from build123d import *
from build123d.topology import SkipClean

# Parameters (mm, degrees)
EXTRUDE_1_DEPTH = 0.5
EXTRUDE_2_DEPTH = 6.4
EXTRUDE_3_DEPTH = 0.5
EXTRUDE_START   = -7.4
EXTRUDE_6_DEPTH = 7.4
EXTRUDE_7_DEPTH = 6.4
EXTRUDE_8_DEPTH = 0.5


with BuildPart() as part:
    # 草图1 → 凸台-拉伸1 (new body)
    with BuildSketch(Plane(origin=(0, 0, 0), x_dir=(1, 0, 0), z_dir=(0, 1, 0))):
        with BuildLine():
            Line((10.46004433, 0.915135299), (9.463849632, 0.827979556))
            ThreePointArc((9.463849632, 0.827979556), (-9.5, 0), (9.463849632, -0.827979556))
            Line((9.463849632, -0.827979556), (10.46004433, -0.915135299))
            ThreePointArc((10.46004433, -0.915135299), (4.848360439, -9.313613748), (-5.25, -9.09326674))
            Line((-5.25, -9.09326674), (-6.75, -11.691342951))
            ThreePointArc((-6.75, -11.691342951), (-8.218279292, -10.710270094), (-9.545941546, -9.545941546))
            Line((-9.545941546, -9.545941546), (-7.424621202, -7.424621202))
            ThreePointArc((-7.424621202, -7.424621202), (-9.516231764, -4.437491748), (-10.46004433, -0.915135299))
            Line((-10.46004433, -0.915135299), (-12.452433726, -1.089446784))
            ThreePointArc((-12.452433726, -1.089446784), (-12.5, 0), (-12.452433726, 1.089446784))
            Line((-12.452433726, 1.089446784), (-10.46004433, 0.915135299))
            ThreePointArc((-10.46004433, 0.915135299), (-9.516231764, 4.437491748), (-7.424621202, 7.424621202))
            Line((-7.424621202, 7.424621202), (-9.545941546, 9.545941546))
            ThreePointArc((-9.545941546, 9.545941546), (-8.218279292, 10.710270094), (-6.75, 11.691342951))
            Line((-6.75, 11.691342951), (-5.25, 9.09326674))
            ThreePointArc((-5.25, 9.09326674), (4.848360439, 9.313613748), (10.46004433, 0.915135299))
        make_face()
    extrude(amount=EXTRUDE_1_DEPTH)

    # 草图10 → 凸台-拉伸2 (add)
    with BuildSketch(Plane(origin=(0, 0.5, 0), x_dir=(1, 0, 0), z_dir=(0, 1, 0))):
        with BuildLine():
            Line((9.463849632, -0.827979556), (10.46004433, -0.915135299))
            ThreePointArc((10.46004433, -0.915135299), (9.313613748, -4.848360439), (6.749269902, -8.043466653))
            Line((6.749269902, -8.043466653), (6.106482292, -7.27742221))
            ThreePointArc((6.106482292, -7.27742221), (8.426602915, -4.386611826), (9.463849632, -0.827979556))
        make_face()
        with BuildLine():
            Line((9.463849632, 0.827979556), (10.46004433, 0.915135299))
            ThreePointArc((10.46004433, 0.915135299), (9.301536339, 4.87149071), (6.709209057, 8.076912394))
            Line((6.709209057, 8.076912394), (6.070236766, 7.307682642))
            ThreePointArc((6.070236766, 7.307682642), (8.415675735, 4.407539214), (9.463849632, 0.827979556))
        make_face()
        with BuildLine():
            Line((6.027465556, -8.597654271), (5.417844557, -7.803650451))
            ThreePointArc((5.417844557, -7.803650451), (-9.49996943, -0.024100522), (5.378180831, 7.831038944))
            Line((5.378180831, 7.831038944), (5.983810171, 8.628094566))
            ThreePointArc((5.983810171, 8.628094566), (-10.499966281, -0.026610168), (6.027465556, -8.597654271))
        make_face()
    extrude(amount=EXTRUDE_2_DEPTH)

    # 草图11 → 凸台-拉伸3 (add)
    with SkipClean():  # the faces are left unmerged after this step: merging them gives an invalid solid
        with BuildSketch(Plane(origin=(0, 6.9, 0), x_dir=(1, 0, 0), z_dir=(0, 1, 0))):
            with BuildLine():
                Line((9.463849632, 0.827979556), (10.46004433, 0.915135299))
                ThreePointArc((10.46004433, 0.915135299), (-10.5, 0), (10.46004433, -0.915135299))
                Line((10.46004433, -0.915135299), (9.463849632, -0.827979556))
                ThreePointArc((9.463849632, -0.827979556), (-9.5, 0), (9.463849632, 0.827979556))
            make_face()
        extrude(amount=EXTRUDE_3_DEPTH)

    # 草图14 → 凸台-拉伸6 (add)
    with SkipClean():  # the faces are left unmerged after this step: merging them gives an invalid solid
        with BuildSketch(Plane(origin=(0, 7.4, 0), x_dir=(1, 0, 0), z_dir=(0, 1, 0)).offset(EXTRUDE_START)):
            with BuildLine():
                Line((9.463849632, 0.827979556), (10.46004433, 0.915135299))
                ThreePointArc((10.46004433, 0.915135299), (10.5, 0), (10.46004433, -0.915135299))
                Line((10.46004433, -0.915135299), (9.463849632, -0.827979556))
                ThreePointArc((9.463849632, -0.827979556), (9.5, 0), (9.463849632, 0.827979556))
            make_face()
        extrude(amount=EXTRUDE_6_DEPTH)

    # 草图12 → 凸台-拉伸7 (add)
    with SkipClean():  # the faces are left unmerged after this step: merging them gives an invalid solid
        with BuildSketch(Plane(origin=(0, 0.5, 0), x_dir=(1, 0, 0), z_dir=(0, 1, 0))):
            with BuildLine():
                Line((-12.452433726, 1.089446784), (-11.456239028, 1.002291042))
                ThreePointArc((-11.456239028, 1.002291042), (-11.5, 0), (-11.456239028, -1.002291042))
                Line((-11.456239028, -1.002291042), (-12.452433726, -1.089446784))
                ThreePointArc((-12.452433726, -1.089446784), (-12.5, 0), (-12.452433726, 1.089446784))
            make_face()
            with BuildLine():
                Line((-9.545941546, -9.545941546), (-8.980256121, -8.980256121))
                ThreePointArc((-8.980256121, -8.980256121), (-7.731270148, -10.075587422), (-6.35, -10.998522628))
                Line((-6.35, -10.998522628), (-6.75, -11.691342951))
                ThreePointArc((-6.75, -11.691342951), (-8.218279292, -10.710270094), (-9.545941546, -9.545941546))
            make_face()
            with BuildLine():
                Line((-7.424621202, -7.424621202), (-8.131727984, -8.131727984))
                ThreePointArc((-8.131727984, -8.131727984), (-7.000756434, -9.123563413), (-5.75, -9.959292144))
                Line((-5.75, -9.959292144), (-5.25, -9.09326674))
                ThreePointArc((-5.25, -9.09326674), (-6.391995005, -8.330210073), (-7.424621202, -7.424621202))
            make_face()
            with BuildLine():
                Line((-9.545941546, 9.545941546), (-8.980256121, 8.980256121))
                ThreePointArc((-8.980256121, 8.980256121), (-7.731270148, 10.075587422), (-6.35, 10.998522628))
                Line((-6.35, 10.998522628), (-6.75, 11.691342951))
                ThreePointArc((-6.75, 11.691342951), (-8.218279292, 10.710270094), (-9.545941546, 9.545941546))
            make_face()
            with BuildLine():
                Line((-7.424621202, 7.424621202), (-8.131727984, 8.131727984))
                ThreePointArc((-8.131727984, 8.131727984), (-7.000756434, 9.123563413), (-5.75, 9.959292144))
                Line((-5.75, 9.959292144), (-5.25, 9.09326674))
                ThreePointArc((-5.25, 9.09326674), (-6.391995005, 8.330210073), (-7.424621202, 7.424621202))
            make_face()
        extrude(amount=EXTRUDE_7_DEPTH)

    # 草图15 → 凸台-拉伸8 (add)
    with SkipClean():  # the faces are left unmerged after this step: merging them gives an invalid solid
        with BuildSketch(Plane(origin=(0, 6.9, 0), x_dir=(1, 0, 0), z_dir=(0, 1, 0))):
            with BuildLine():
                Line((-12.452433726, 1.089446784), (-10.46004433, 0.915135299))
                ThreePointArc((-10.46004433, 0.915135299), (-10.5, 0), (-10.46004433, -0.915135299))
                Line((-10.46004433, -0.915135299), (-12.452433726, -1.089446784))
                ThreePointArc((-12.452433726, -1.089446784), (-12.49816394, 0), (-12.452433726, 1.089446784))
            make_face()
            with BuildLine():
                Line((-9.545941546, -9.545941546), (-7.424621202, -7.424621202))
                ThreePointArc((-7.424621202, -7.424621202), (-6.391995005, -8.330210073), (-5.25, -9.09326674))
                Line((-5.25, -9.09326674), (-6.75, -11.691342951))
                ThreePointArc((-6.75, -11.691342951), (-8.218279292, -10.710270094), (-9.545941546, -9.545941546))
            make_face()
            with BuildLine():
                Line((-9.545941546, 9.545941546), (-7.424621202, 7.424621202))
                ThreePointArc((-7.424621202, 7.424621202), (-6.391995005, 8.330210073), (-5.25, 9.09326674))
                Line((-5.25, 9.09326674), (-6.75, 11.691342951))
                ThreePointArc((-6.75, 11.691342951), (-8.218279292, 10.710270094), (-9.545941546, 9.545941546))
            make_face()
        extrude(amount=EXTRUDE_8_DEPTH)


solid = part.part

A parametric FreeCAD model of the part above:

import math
import FreeCAD as App
import Part
import Sketcher
Q = App.Units.Quantity

doc = App.newDocument("Part")
params = doc.addObject("Spreadsheet::Sheet", "Params")
for row, (alias, value) in enumerate([
    ("sketch1_radius", "10.5 mm"),
    ("sketch1_radius2", "13.5 mm"),
    ("sketch1_radius3", "12.5 mm"),
    ("sketch1_radius4", "9.5 mm"),
    ("pad1_length", "0.5 mm"),
    ("sketch2_radius", "9.5 mm"),
    ("sketch2_radius2", "10.5 mm"),
    ("pad2_length", "6.4 mm"),
    ("sketch3_radius", "10.5 mm"),
    ("sketch3_radius2", "9.5 mm"),
    ("pad3_length", "0.5 mm"),
    ("sketch4_radius", "9.5 mm"),
    ("sketch4_radius2", "10.5 mm"),
    ("pad4_length", "7.4 mm"),
    ("sketch5_radius", "12.5 mm"),
    ("sketch5_radius2", "11.5 mm"),
    ("sketch5_radius3", "13.5 mm"),
    ("sketch5_radius4", "12.7 mm"),
    ("pad5_length", "6.4 mm"),
    ("sketch6_radius", "13 mm"),
    ("sketch6_radius2", "10.5 mm"),
    ("sketch6_radius3", "13.5 mm"),
    ("sketch6_length", "2 mm"),
    ("pad6_length", "0.5 mm"),
], start=1):
    params.set(f"A{row}", alias)
    params.set(f"B{row}", "=" + value)
    params.setAlias(f"B{row}", alias)

body = doc.addObject("PartDesign::Body", "Body")

# Sketch on XZ plane
sketch1 = body.newObject("Sketcher::SketchObject", "Sketch")
sketch1.AttachmentSupport = (doc.getObject("XZ_Plane"), [""])
sketch1.MapMode = "FlatFace"
sketch1.addGeometry([
    Part.LineSegment(App.Vector(9.5, -0.8, 0), App.Vector(10.5, -0.9, 0)),  # 0
    Part.ArcOfCircle(Part.Circle(App.Vector(0, 0, 0), App.Vector(0, 0, 1), 10.5), math.radians(-120), math.radians(-5)),  # 1
    Part.LineSegment(App.Vector(-5.2, -9.1, 0), App.Vector(-6.8, -11.7, 0)),  # 2
    Part.ArcOfCircle(Part.Circle(App.Vector(0, 0, 0), App.Vector(0, 0, 1), 13.5), math.radians(-135), math.radians(-120)),  # 3
    Part.LineSegment(App.Vector(-9.5, -9.5, 0), App.Vector(-7.4, -7.4, 0)),  # 4
    Part.ArcOfCircle(Part.Circle(App.Vector(0, 0, 0), App.Vector(0, 0, 1), 10.5), math.radians(-175), math.radians(-135)),  # 5
    Part.LineSegment(App.Vector(-10.5, -0.9, 0), App.Vector(-12.5, -1.1, 0)),  # 6
    Part.ArcOfCircle(Part.Circle(App.Vector(0, 0, 0), App.Vector(0, 0, 1), 12.5), math.radians(175), math.radians(185)),  # 7
    Part.LineSegment(App.Vector(-12.5, 1.1, 0), App.Vector(-10.5, 0.9, 0)),  # 8
    Part.ArcOfCircle(Part.Circle(App.Vector(0, 0, 0), App.Vector(0, 0, 1), 10.5), math.radians(135), math.radians(175)),  # 9
    Part.LineSegment(App.Vector(-7.4, 7.4, 0), App.Vector(-9.5, 9.5, 0)),  # 10
    Part.ArcOfCircle(Part.Circle(App.Vector(0, 0, 0), App.Vector(0, 0, 1), 13.5), math.radians(120), math.radians(135)),  # 11
    Part.LineSegment(App.Vector(-6.8, 11.7, 0), App.Vector(-5.2, 9.1, 0)),  # 12
    Part.ArcOfCircle(Part.Circle(App.Vector(0, 0, 0), App.Vector(0, 0, 1), 10.5), math.radians(5), math.radians(120)),  # 13
    Part.LineSegment(App.Vector(10.5, 0.9, 0), App.Vector(9.5, 0.8, 0)),  # 14
    Part.ArcOfCircle(Part.Circle(App.Vector(0, 0, 0), App.Vector(0, 0, 1), 9.5), math.radians(5), math.radians(355)),  # 15
], False)
sketch1.addConstraint([
    Sketcher.Constraint("Coincident", 0, 2, 1, 2),
    Sketcher.Constraint("Coincident", 1, 1, 2, 1),
    Sketcher.Constraint("Coincident", 2, 2, 3, 2),
    Sketcher.Constraint("Coincident", 3, 1, 4, 1),
    Sketcher.Constraint("Coincident", 4, 2, 5, 2),
    Sketcher.Constraint("Coincident", 5, 1, 6, 1),
    Sketcher.Constraint("Coincident", 6, 2, 7, 2),
    Sketcher.Constraint("Coincident", 7, 1, 8, 1),
    Sketcher.Constraint("Coincident", 8, 2, 9, 2),
    Sketcher.Constraint("Coincident", 9, 1, 10, 1),
    Sketcher.Constraint("Coincident", 10, 2, 11, 2),
    Sketcher.Constraint("Coincident", 11, 1, 12, 1),
    Sketcher.Constraint("Coincident", 12, 2, 13, 2),
    Sketcher.Constraint("Coincident", 13, 1, 14, 1),
    Sketcher.Constraint("Coincident", 14, 2, 15, 1),
    Sketcher.Constraint("Coincident", 15, 2, 0, 1),
    Sketcher.Constraint("Coincident", 1, 3, -1, 1),
    Sketcher.Constraint("Coincident", 3, 3, -1, 1),
    Sketcher.Constraint("Coincident", 5, 3, -1, 1),
    Sketcher.Constraint("Coincident", 7, 3, -1, 1),
    Sketcher.Constraint("Coincident", 9, 3, -1, 1),
    Sketcher.Constraint("Coincident", 11, 3, -1, 1),
    Sketcher.Constraint("Coincident", 13, 3, -1, 1),
    Sketcher.Constraint("Coincident", 15, 3, -1, 1),
    Sketcher.Constraint("Equal", 1, 5),
    Sketcher.Constraint("Equal", 5, 9),
    Sketcher.Constraint("Equal", 3, 11),
    Sketcher.Constraint("Equal", 9, 13),
    Sketcher.Constraint("Parallel", 0, 8),
    Sketcher.Constraint("Perpendicular", 4, 10),
    Sketcher.Constraint("Parallel", 6, 14),
    Sketcher.Constraint("Horizontal", 0, 2, 5, 1),
    Sketcher.Constraint("Horizontal", 8, 2, 13, 1),
    Sketcher.Constraint("Vertical", 6, 2, 7, 1),
    Sketcher.Constraint("Vertical", 5, 1, 8, 2),
    Sketcher.Constraint("Vertical", 4, 2, 9, 1),
    Sketcher.Constraint("Vertical", 3, 1, 10, 2),
    Sketcher.Constraint("Vertical", 2, 2, 11, 1),
    Sketcher.Constraint("Vertical", 1, 1, 12, 2),
    Sketcher.Constraint("Radius", 1, 10.5),
    Sketcher.Constraint("Radius", 3, 13.5),
    Sketcher.Constraint("Radius", 7, 12.5),
    Sketcher.Constraint("Radius", 15, 9.5),
    Sketcher.Constraint("Angle", 0, Q("-5 deg")),
    Sketcher.Constraint("Angle", 2, Q("-120 deg")),
    Sketcher.Constraint("DistanceX", 1, 1, -1, 1, 5.25),
    Sketcher.Constraint("DistanceY", 2, 2, 3, 1, 2.145401),
    Sketcher.Constraint("DistanceX", -1, 1, 14, 2, 9.46385),
])
sketch1.setExpression("Constraints[39]", "Params.sketch1_radius")
sketch1.setExpression("Constraints[40]", "Params.sketch1_radius2")
sketch1.setExpression("Constraints[41]", "Params.sketch1_radius3")
sketch1.setExpression("Constraints[42]", "Params.sketch1_radius4")
pad1 = body.newObject("PartDesign::Pad", "Pad")
pad1.Profile = sketch1
pad1.setExpression("Length", "Params.pad1_length")
pad1.Reversed = True

# Sketch on XZ plane
sketch2 = body.newObject("Sketcher::SketchObject", "Sketch001")
sketch2.AttachmentSupport = (doc.getObject("XZ_Plane"), [""])
sketch2.MapMode = "FlatFace"
sketch2.AttachmentOffset = App.Placement(App.Vector(0, 0, -0.5), App.Rotation())
sketch2.addGeometry([
    Part.LineSegment(App.Vector(10.460044, 0.915135, 0), App.Vector(9.46385, 0.82798, 0)),  # 0
    Part.ArcOfCircle(Part.Circle(App.Vector(0, 0, 0), App.Vector(0, 0, 1), 9.5), math.radians(5), math.radians(50)),  # 1
    Part.LineSegment(App.Vector(6.106482, 7.277422, 0), App.Vector(6.74927, 8.043467, 0)),  # 2
    Part.ArcOfCircle(Part.Circle(App.Vector(0, 0, 0), App.Vector(0, 0, 1), 10.5), math.radians(5), math.radians(50)),  # 3
    Part.LineSegment(App.Vector(9.46385, -0.82798, 0), App.Vector(10.460044, -0.915135, 0)),  # 4
    Part.ArcOfCircle(Part.Circle(App.Vector(0, 0, 0), App.Vector(0, 0, 1), 10.5), math.radians(-50.284772), math.radians(-5)),  # 5
    Part.LineSegment(App.Vector(6.709209, -8.076912, 0), App.Vector(6.070237, -7.307683, 0)),  # 6
    Part.ArcOfCircle(Part.Circle(App.Vector(0, 0, 0), App.Vector(0, 0, 1), 9.5), math.radians(-50.284772), math.radians(-5)),  # 7
    Part.LineSegment(App.Vector(6.027466, 8.597654, 0), App.Vector(5.417845, 7.80365, 0)),  # 8
    Part.ArcOfCircle(Part.Circle(App.Vector(0, 0, 0), App.Vector(0, 0, 1), 9.5), math.radians(55.228892), math.radians(304.480401)),  # 9
    Part.LineSegment(App.Vector(5.378181, -7.831039, 0), App.Vector(5.98381, -8.628095, 0)),  # 10
    Part.ArcOfCircle(Part.Circle(App.Vector(0, 0, 0), App.Vector(0, 0, 1), 10.5), math.radians(54.967266), math.radians(304.742324)),  # 11
], False)
sketch2.addConstraint([
    Sketcher.Constraint("Coincident", 0, 2, 1, 1),
    Sketcher.Constraint("Coincident", 1, 2, 2, 1),
    Sketcher.Constraint("Coincident", 2, 2, 3, 2),
    Sketcher.Constraint("Coincident", 3, 1, 0, 1),
    Sketcher.Constraint("Coincident", 4, 2, 5, 2),
    Sketcher.Constraint("Coincident", 5, 1, 6, 1),
    Sketcher.Constraint("Coincident", 6, 2, 7, 1),
    Sketcher.Constraint("Coincident", 7, 2, 4, 1),
    Sketcher.Constraint("Coincident", 8, 2, 9, 1),
    Sketcher.Constraint("Coincident", 9, 2, 10, 1),
    Sketcher.Constraint("Coincident", 10, 2, 11, 2),
    Sketcher.Constraint("Coincident", 11, 1, 8, 1),
    Sketcher.Constraint("Coincident", 1, 3, -1, 1),
    Sketcher.Constraint("Coincident", 3, 3, -1, 1),
    Sketcher.Constraint("Coincident", 5, 3, -1, 1),
    Sketcher.Constraint("Coincident", 7, 3, -1, 1),
    Sketcher.Constraint("Coincident", 9, 3, -1, 1),
    Sketcher.Constraint("Coincident", 11, 3, -1, 1),
    Sketcher.Constraint("Equal", 3, 5),
    Sketcher.Constraint("Equal", 1, 7),
    Sketcher.Constraint("Equal", 7, 9),
    Sketcher.Constraint("Equal", 5, 11),
    Sketcher.Constraint("Vertical", 3, 1, 4, 2),
    Sketcher.Constraint("Vertical", 0, 2, 7, 2),
    Sketcher.Constraint("Radius", 1, 9.5),
    Sketcher.Constraint("Radius", 3, 10.5),
    Sketcher.Constraint("Angle", 0, Q("-175 deg")),
    Sketcher.Constraint("Angle", 2, Q("50 deg")),
    Sketcher.Constraint("DistanceY", 4, 2, 2, 2, 8.958602),
    Sketcher.Constraint("DistanceX", 8, 2, 3, 1, 5.0422),
    Sketcher.Constraint("DistanceX", 10, 2, 5, 1, 0.725399),
    Sketcher.Constraint("Distance", 8, 1.001039),
    Sketcher.Constraint("Distance", 10, 1.001042),
    Sketcher.Constraint("DistanceX", -1, 1, 0, 2, 9.46385),
    Sketcher.Constraint("DistanceX", -1, 1, 5, 1, 6.709209),
    Sketcher.Constraint("DistanceY", 5, 1, 6, 2, 0.76923),
])
sketch2.setExpression("Constraints[24]", "Params.sketch2_radius")
sketch2.setExpression("Constraints[25]", "Params.sketch2_radius2")
pad2 = body.newObject("PartDesign::Pad", "Pad001")
pad2.Profile = sketch2
pad2.setExpression("Length", "Params.pad2_length")
pad2.Reversed = True

# Sketch on XZ plane
sketch3 = body.newObject("Sketcher::SketchObject", "Sketch002")
sketch3.AttachmentSupport = (doc.getObject("XZ_Plane"), [""])
sketch3.MapMode = "FlatFace"
sketch3.AttachmentOffset = App.Placement(App.Vector(0, 0, -6.9), App.Rotation())
sketch3.addGeometry([
    Part.LineSegment(App.Vector(9.5, -0.8, 0), App.Vector(10.5, -0.9, 0)),
    Part.ArcOfCircle(Part.Circle(App.Vector(0, 0, 0), App.Vector(0, 0, 1), 10.5), math.radians(5), math.radians(355)),
    Part.LineSegment(App.Vector(10.5, 0.9, 0), App.Vector(9.5, 0.8, 0)),
    Part.ArcOfCircle(Part.Circle(App.Vector(0, 0, 0), App.Vector(0, 0, 1), 9.5), math.radians(5), math.radians(355)),
], False)
sketch3.addConstraint([
    Sketcher.Constraint("Coincident", 0, 2, 1, 2),
    Sketcher.Constraint("Coincident", 1, 1, 2, 1),
    Sketcher.Constraint("Coincident", 2, 2, 3, 1),
    Sketcher.Constraint("Coincident", 3, 2, 0, 1),
    Sketcher.Constraint("Coincident", 1, 3, -1, 1),
    Sketcher.Constraint("Coincident", 3, 3, -1, 1),
    Sketcher.Constraint("Vertical", 0, 2, 1, 1),
    Sketcher.Constraint("Vertical", 2, 2, 3, 2),
    Sketcher.Constraint("Radius", 1, 10.5),
    Sketcher.Constraint("Radius", 3, 9.5),
    Sketcher.Constraint("Angle", 0, Q("-5 deg")),
    Sketcher.Constraint("DistanceX", -1, 1, 2, 2, 9.46385),
])
sketch3.setExpression("Constraints[8]", "Params.sketch3_radius")
sketch3.setExpression("Constraints[9]", "Params.sketch3_radius2")
pad3 = body.newObject("PartDesign::Pad", "Pad002")
pad3.Profile = sketch3
pad3.setExpression("Length", "Params.pad3_length")
pad3.Reversed = True

# Sketch on XZ plane
sketch4 = body.newObject("Sketcher::SketchObject", "Sketch003")
sketch4.AttachmentSupport = (doc.getObject("XZ_Plane"), [""])
sketch4.MapMode = "FlatFace"
sketch4.addGeometry([
    Part.LineSegment(App.Vector(10.5, -0.9, 0), App.Vector(9.5, -0.8, 0)),
    Part.ArcOfCircle(Part.Circle(App.Vector(0, 0, 0), App.Vector(0, 0, 1), 9.5), math.radians(-5), math.radians(5)),
    Part.LineSegment(App.Vector(9.5, 0.8, 0), App.Vector(10.5, 0.9, 0)),
    Part.ArcOfCircle(Part.Circle(App.Vector(0, 0, 0), App.Vector(0, 0, 1), 10.5), math.radians(-5), math.radians(5)),
], False)
sketch4.addConstraint([
    Sketcher.Constraint("Coincident", 0, 2, 1, 1),
    Sketcher.Constraint("Coincident", 1, 2, 2, 1),
    Sketcher.Constraint("Coincident", 2, 2, 3, 2),
    Sketcher.Constraint("Coincident", 3, 1, 0, 1),
    Sketcher.Constraint("Coincident", 1, 3, -1, 1),
    Sketcher.Constraint("Coincident", 3, 3, -1, 1),
    Sketcher.Constraint("Vertical", 0, 2, 1, 2),
    Sketcher.Constraint("Vertical", 2, 2, 3, 1),
    Sketcher.Constraint("Radius", 1, 9.5),
    Sketcher.Constraint("Radius", 3, 10.5),
    Sketcher.Constraint("Angle", 0, Q("175 deg")),
    Sketcher.Constraint("DistanceX", -1, 1, 0, 2, 9.46385),
])
sketch4.setExpression("Constraints[8]", "Params.sketch4_radius")
sketch4.setExpression("Constraints[9]", "Params.sketch4_radius2")
pad4 = body.newObject("PartDesign::Pad", "Pad003")
pad4.Profile = sketch4
pad4.setExpression("Length", "Params.pad4_length")
pad4.Reversed = True

# Sketch on XZ plane
sketch5 = body.newObject("Sketcher::SketchObject", "Sketch004")
sketch5.AttachmentSupport = (doc.getObject("XZ_Plane"), [""])
sketch5.MapMode = "FlatFace"
sketch5.AttachmentOffset = App.Placement(App.Vector(0, 0, -0.5), App.Rotation())
sketch5.addGeometry([
    Part.LineSegment(App.Vector(-11.5, -1, 0), App.Vector(-12.5, -1.1, 0)),  # 0
    Part.ArcOfCircle(Part.Circle(App.Vector(0, 0, 0), App.Vector(0, 0, 1), 12.5), math.radians(175), math.radians(185)),  # 1
    Part.LineSegment(App.Vector(-12.5, 1.1, 0), App.Vector(-11.5, 1, 0)),  # 2
    Part.ArcOfCircle(Part.Circle(App.Vector(0, 0, 0), App.Vector(0, 0, 1), 11.5), math.radians(175), math.radians(185)),  # 3
    Part.LineSegment(App.Vector(-9, 9, 0), App.Vector(-9.5, 9.5, 0)),  # 4
    Part.ArcOfCircle(Part.Circle(App.Vector(0, 0, 0), App.Vector(0, 0, 1), 13.5), math.radians(120), math.radians(135)),  # 5
    Part.LineSegment(App.Vector(-6.8, 11.7, 0), App.Vector(-6.3, 11, 0)),  # 6
    Part.ArcOfCircle(Part.Circle(App.Vector(0, 0, 0), App.Vector(0, 0, 1), 12.7), math.radians(120), math.radians(135)),  # 7
    Part.LineSegment(App.Vector(-7.4, 7.4, 0), App.Vector(-8.1, 8.1, 0)),  # 8
    Part.ArcOfCircle(Part.Circle(App.Vector(0, 0, 0), App.Vector(0, 0, 1), 11.5), math.radians(120), math.radians(135)),  # 9
    Part.LineSegment(App.Vector(-5.8, 10, 0), App.Vector(-5.2, 9.1, 0)),  # 10
    Part.ArcOfCircle(Part.Circle(App.Vector(0, 0, 0), App.Vector(0, 0, 1), 10.5), math.radians(120), math.radians(135)),  # 11
    Part.LineSegment(App.Vector(-9.5, -9.5, 0), App.Vector(-9, -9, 0)),  # 12
    Part.ArcOfCircle(Part.Circle(App.Vector(0, 0, 0), App.Vector(0, 0, 1), 12.7), math.radians(-135), math.radians(-120)),  # 13
    Part.LineSegment(App.Vector(-6.3, -11, 0), App.Vector(-6.8, -11.7, 0)),  # 14
    Part.ArcOfCircle(Part.Circle(App.Vector(0, 0, 0), App.Vector(0, 0, 1), 13.5), math.radians(-135), math.radians(-120)),  # 15
    Part.LineSegment(App.Vector(-8.1, -8.1, 0), App.Vector(-7.4, -7.4, 0)),  # 16
    Part.ArcOfCircle(Part.Circle(App.Vector(0, 0, 0), App.Vector(0, 0, 1), 10.5), math.radians(-135), math.radians(-120)),  # 17
    Part.LineSegment(App.Vector(-5.2, -9.1, 0), App.Vector(-5.8, -10, 0)),  # 18
    Part.ArcOfCircle(Part.Circle(App.Vector(0, 0, 0), App.Vector(0, 0, 1), 11.5), math.radians(-135), math.radians(-120)),  # 19
], False)
sketch5.addConstraint([
    Sketcher.Constraint("Coincident", 0, 2, 1, 2),
    Sketcher.Constraint("Coincident", 1, 1, 2, 1),
    Sketcher.Constraint("Coincident", 2, 2, 3, 1),
    Sketcher.Constraint("Coincident", 3, 2, 0, 1),
    Sketcher.Constraint("Coincident", 4, 2, 5, 2),
    Sketcher.Constraint("Coincident", 5, 1, 6, 1),
    Sketcher.Constraint("Coincident", 6, 2, 7, 1),
    Sketcher.Constraint("Coincident", 7, 2, 4, 1),
    Sketcher.Constraint("Coincident", 8, 2, 9, 2),
    Sketcher.Constraint("Coincident", 9, 1, 10, 1),
    Sketcher.Constraint("Coincident", 10, 2, 11, 1),
    Sketcher.Constraint("Coincident", 11, 2, 8, 1),
    Sketcher.Constraint("Coincident", 12, 2, 13, 1),
    Sketcher.Constraint("Coincident", 13, 2, 14, 1),
    Sketcher.Constraint("Coincident", 14, 2, 15, 2),
    Sketcher.Constraint("Coincident", 15, 1, 12, 1),
    Sketcher.Constraint("Coincident", 16, 2, 17, 1),
    Sketcher.Constraint("Coincident", 17, 2, 18, 1),
    Sketcher.Constraint("Coincident", 18, 2, 19, 2),
    Sketcher.Constraint("Coincident", 19, 1, 16, 1),
    Sketcher.Constraint("Coincident", 1, 3, -1, 1),
    Sketcher.Constraint("Coincident", 3, 3, -1, 1),
    Sketcher.Constraint("Coincident", 5, 3, -1, 1),
    Sketcher.Constraint("Coincident", 7, 3, -1, 1),
    Sketcher.Constraint("Coincident", 9, 3, -1, 1),
    Sketcher.Constraint("Coincident", 11, 3, -1, 1),
    Sketcher.Constraint("Coincident", 13, 3, -1, 1),
    Sketcher.Constraint("Coincident", 15, 3, -1, 1),
    Sketcher.Constraint("Coincident", 17, 3, -1, 1),
    Sketcher.Constraint("Coincident", 19, 3, -1, 1),
    Sketcher.Constraint("Equal", 3, 9),
    Sketcher.Constraint("Equal", 7, 13),
    Sketcher.Constraint("Equal", 5, 15),
    Sketcher.Constraint("Equal", 11, 17),
    Sketcher.Constraint("Equal", 9, 19),
    Sketcher.Constraint("Parallel", 4, 8),
    Sketcher.Constraint("Parallel", 6, 10),
    Sketcher.Constraint("Perpendicular", 8, 12),
    Sketcher.Constraint("Parallel", 12, 16),
    Sketcher.Constraint("Parallel", 14, 18),
    Sketcher.Constraint("Vertical", 0, 2, 1, 1),
    Sketcher.Constraint("Vertical", 2, 2, 3, 2),
    Sketcher.Constraint("Vertical", 7, 2, 12, 2),
    Sketcher.Constraint("Vertical", 6, 2, 13, 2),
    Sketcher.Constraint("Vertical", 5, 1, 14, 2),
    Sketcher.Constraint("Vertical", 4, 2, 15, 1),
    Sketcher.Constraint("Vertical", 11, 2, 16, 2),
    Sketcher.Constraint("Vertical", 10, 2, 17, 2),
    Sketcher.Constraint("Equal", 2, 8),
    Sketcher.Constraint("Radius", 1, 12.5),
    Sketcher.Constraint("Radius", 3, 11.5),
    Sketcher.Constraint("Radius", 5, 13.5),
    Sketcher.Constraint("Radius", 7, 12.7),
    Sketcher.Constraint("Angle", 0, Q("-175 deg")),
    Sketcher.Constraint("Angle", 6, Q("-60 deg")),
    Sketcher.Constraint("DistanceX", 5, 1, 9, 1, 1.0),
    Sketcher.Constraint("DistanceX", 5, 1, -1, 1, 6.75),
    Sketcher.Constraint("DistanceY", 4, 2, 5, 1, 2.145401),
    Sketcher.Constraint("DistanceY", 13, 2, 16, 2, 3.573901),
    Sketcher.Constraint("DistanceX", 2, 2, -1, 1, 11.456239),
])
sketch5.setExpression("Constraints[49]", "Params.sketch5_radius")
sketch5.setExpression("Constraints[50]", "Params.sketch5_radius2")
sketch5.setExpression("Constraints[51]", "Params.sketch5_radius3")
sketch5.setExpression("Constraints[52]", "Params.sketch5_radius4")
pad5 = body.newObject("PartDesign::Pad", "Pad004")
pad5.Profile = sketch5
pad5.setExpression("Length", "Params.pad5_length")
pad5.Reversed = True

# Sketch on XZ plane
sketch6 = body.newObject("Sketcher::SketchObject", "Sketch005")
sketch6.AttachmentSupport = (doc.getObject("XZ_Plane"), [""])
sketch6.MapMode = "FlatFace"
sketch6.AttachmentOffset = App.Placement(App.Vector(0, 0, -6.9), App.Rotation())
sketch6.addGeometry([
    Part.LineSegment(App.Vector(-10.5, -0.9, 0), App.Vector(-12.5, -1.1, 0)),  # 0
    Part.ArcOfCircle(Part.Circle(App.Vector(0.5, 0, 0), App.Vector(0, 0, 1), 13), math.radians(175.19), math.radians(184.81)),  # 1
    Part.LineSegment(App.Vector(-12.5, 1.1, 0), App.Vector(-10.5, 0.9, 0)),  # 2
    Part.ArcOfCircle(Part.Circle(App.Vector(0, 0, 0), App.Vector(0, 0, 1), 10.5), math.radians(175), math.radians(185)),  # 3
    Part.LineSegment(App.Vector(-7.4, 7.4, 0), App.Vector(-9.5, 9.5, 0)),  # 4
    Part.ArcOfCircle(Part.Circle(App.Vector(0, 0, 0), App.Vector(0, 0, 1), 13.5), math.radians(120), math.radians(135)),  # 5
    Part.LineSegment(App.Vector(-6.8, 11.7, 0), App.Vector(-5.2, 9.1, 0)),  # 6
    Part.ArcOfCircle(Part.Circle(App.Vector(0, 0, 0), App.Vector(0, 0, 1), 10.5), math.radians(120), math.radians(135)),  # 7
    Part.LineSegment(App.Vector(-9.5, -9.5, 0), App.Vector(-7.4, -7.4, 0)),  # 8
    Part.ArcOfCircle(Part.Circle(App.Vector(0, 0, 0), App.Vector(0, 0, 1), 10.5), math.radians(-135), math.radians(-120)),  # 9
    Part.LineSegment(App.Vector(-5.2, -9.1, 0), App.Vector(-6.8, -11.7, 0)),  # 10
    Part.ArcOfCircle(Part.Circle(App.Vector(0, 0, 0), App.Vector(0, 0, 1), 13.5), math.radians(-135), math.radians(-120)),  # 11
], False)
sketch6.addConstraint([
    Sketcher.Constraint("Coincident", 0, 2, 1, 2),
    Sketcher.Constraint("Coincident", 1, 1, 2, 1),
    Sketcher.Constraint("Coincident", 2, 2, 3, 1),
    Sketcher.Constraint("Coincident", 3, 2, 0, 1),
    Sketcher.Constraint("Coincident", 4, 2, 5, 2),
    Sketcher.Constraint("Coincident", 5, 1, 6, 1),
    Sketcher.Constraint("Coincident", 6, 2, 7, 1),
    Sketcher.Constraint("Coincident", 7, 2, 4, 1),
    Sketcher.Constraint("Coincident", 8, 2, 9, 1),
    Sketcher.Constraint("Coincident", 9, 2, 10, 1),
    Sketcher.Constraint("Coincident", 10, 2, 11, 2),
    Sketcher.Constraint("Coincident", 11, 1, 8, 1),
    Sketcher.Constraint("Coincident", 3, 3, -1, 1),
    Sketcher.Constraint("Coincident", 5, 3, -1, 1),
    Sketcher.Constraint("Coincident", 7, 3, -1, 1),
    Sketcher.Constraint("Coincident", 9, 3, -1, 1),
    Sketcher.Constraint("Coincident", 11, 3, -1, 1),
    Sketcher.Constraint("Equal", 3, 7),
    Sketcher.Constraint("Equal", 7, 9),
    Sketcher.Constraint("Equal", 5, 11),
    Sketcher.Constraint("Symmetric", 0, 2, 1, 1, -1),
    Sketcher.Constraint("Perpendicular", 4, 8),
    Sketcher.Constraint("Vertical", 2, 2, 3, 2),
    Sketcher.Constraint("Vertical", 7, 2, 8, 2),
    Sketcher.Constraint("Vertical", 6, 2, 9, 2),
    Sketcher.Constraint("Vertical", 5, 1, 10, 2),
    Sketcher.Constraint("Vertical", 4, 2, 11, 1),
    Sketcher.Constraint("Radius", 1, 13.0),
    Sketcher.Constraint("Radius", 3, 10.5),
    Sketcher.Constraint("Radius", 5, 13.5),
    Sketcher.Constraint("Angle", 0, Q("-175 deg")),
    Sketcher.Constraint("Angle", 6, Q("-60 deg")),
    Sketcher.Constraint("Distance", 0, 2.0),
    Sketcher.Constraint("DistanceX", 5, 1, -1, 1, 6.75),
    Sketcher.Constraint("DistanceY", 4, 2, 5, 1, 2.145401),
    Sketcher.Constraint("DistanceY", 3, 2, 2, 2, 1.830271),
])
sketch6.setExpression("Constraints[27]", "Params.sketch6_radius")
sketch6.setExpression("Constraints[28]", "Params.sketch6_radius2")
sketch6.setExpression("Constraints[29]", "Params.sketch6_radius3")
sketch6.setExpression("Constraints[32]", "Params.sketch6_length")
pad6 = body.newObject("PartDesign::Pad", "Pad005")
pad6.Profile = sketch6
pad6.setExpression("Length", "Params.pad6_length")
pad6.Reversed = True

doc.recompute()
